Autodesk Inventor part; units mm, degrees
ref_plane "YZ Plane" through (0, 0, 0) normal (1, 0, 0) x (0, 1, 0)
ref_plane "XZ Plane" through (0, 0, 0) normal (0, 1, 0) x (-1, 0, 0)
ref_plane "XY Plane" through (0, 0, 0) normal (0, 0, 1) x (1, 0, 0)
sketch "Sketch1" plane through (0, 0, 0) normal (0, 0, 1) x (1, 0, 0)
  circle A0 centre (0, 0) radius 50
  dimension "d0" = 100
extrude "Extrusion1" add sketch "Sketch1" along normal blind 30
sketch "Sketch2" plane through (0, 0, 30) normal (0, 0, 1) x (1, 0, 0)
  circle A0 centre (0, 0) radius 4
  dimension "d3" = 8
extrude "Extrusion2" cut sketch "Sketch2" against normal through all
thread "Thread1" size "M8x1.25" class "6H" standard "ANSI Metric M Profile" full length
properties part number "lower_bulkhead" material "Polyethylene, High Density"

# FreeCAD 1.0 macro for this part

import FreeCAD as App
import Part
import Sketcher

V = App.Vector

doc = App.newDocument("Part")
params = doc.addObject("Spreadsheet::Sheet", "Params")
for row, (alias, value) in enumerate([
    ("sketch1_diameter", "100 mm"),
    ("pad1_length", "30 mm"),
    ("sketch2_diameter", "8 mm"),
], start=1):
    params.set(f"A{row}", alias)
    params.set(f"B{row}", "=" + value)
    params.setAlias(f"B{row}", alias)

body = doc.addObject("PartDesign::Body", "Body")

# Sketch on XY plane
sketch1 = body.newObject("Sketcher::SketchObject", "Sketch")
sketch1.AttachmentSupport = (doc.getObject("XY_Plane"), [""])
sketch1.MapMode = "FlatFace"
sketch1.addGeometry(Part.Circle(V(0, 0, 0), V(0, 0, 1), 50), False)
sketch1.addConstraint([
    Sketcher.Constraint("Coincident", 0, 3, -1, 1),
    Sketcher.Constraint("Diameter", 0, 100.0),
])
sketch1.setExpression("Constraints[1]", "Params.sketch1_diameter")
pad1 = body.newObject("PartDesign::Pad", "Pad")
pad1.Profile = sketch1
pad1.setExpression("Length", "Params.pad1_length")

# Sketch on XY plane
sketch2 = body.newObject("Sketcher::SketchObject", "Sketch001")
sketch2.AttachmentSupport = (doc.getObject("XY_Plane"), [""])
sketch2.MapMode = "FlatFace"
sketch2.AttachmentOffset = App.Placement(V(0, 0, 30), App.Rotation())
sketch2.addGeometry(Part.Circle(V(0, 0, 0), V(0, 0, 1), 4), False)
sketch2.addConstraint([
    Sketcher.Constraint("Coincident", 0, 3, -1, 1),
    Sketcher.Constraint("Diameter", 0, 8.0),
])
sketch2.setExpression("Constraints[1]", "Params.sketch2_diameter")
pocket1 = body.newObject("PartDesign::Pocket", "Pocket")
pocket1.Profile = sketch2
pocket1.Type = "ThroughAll"

doc.recompute()
